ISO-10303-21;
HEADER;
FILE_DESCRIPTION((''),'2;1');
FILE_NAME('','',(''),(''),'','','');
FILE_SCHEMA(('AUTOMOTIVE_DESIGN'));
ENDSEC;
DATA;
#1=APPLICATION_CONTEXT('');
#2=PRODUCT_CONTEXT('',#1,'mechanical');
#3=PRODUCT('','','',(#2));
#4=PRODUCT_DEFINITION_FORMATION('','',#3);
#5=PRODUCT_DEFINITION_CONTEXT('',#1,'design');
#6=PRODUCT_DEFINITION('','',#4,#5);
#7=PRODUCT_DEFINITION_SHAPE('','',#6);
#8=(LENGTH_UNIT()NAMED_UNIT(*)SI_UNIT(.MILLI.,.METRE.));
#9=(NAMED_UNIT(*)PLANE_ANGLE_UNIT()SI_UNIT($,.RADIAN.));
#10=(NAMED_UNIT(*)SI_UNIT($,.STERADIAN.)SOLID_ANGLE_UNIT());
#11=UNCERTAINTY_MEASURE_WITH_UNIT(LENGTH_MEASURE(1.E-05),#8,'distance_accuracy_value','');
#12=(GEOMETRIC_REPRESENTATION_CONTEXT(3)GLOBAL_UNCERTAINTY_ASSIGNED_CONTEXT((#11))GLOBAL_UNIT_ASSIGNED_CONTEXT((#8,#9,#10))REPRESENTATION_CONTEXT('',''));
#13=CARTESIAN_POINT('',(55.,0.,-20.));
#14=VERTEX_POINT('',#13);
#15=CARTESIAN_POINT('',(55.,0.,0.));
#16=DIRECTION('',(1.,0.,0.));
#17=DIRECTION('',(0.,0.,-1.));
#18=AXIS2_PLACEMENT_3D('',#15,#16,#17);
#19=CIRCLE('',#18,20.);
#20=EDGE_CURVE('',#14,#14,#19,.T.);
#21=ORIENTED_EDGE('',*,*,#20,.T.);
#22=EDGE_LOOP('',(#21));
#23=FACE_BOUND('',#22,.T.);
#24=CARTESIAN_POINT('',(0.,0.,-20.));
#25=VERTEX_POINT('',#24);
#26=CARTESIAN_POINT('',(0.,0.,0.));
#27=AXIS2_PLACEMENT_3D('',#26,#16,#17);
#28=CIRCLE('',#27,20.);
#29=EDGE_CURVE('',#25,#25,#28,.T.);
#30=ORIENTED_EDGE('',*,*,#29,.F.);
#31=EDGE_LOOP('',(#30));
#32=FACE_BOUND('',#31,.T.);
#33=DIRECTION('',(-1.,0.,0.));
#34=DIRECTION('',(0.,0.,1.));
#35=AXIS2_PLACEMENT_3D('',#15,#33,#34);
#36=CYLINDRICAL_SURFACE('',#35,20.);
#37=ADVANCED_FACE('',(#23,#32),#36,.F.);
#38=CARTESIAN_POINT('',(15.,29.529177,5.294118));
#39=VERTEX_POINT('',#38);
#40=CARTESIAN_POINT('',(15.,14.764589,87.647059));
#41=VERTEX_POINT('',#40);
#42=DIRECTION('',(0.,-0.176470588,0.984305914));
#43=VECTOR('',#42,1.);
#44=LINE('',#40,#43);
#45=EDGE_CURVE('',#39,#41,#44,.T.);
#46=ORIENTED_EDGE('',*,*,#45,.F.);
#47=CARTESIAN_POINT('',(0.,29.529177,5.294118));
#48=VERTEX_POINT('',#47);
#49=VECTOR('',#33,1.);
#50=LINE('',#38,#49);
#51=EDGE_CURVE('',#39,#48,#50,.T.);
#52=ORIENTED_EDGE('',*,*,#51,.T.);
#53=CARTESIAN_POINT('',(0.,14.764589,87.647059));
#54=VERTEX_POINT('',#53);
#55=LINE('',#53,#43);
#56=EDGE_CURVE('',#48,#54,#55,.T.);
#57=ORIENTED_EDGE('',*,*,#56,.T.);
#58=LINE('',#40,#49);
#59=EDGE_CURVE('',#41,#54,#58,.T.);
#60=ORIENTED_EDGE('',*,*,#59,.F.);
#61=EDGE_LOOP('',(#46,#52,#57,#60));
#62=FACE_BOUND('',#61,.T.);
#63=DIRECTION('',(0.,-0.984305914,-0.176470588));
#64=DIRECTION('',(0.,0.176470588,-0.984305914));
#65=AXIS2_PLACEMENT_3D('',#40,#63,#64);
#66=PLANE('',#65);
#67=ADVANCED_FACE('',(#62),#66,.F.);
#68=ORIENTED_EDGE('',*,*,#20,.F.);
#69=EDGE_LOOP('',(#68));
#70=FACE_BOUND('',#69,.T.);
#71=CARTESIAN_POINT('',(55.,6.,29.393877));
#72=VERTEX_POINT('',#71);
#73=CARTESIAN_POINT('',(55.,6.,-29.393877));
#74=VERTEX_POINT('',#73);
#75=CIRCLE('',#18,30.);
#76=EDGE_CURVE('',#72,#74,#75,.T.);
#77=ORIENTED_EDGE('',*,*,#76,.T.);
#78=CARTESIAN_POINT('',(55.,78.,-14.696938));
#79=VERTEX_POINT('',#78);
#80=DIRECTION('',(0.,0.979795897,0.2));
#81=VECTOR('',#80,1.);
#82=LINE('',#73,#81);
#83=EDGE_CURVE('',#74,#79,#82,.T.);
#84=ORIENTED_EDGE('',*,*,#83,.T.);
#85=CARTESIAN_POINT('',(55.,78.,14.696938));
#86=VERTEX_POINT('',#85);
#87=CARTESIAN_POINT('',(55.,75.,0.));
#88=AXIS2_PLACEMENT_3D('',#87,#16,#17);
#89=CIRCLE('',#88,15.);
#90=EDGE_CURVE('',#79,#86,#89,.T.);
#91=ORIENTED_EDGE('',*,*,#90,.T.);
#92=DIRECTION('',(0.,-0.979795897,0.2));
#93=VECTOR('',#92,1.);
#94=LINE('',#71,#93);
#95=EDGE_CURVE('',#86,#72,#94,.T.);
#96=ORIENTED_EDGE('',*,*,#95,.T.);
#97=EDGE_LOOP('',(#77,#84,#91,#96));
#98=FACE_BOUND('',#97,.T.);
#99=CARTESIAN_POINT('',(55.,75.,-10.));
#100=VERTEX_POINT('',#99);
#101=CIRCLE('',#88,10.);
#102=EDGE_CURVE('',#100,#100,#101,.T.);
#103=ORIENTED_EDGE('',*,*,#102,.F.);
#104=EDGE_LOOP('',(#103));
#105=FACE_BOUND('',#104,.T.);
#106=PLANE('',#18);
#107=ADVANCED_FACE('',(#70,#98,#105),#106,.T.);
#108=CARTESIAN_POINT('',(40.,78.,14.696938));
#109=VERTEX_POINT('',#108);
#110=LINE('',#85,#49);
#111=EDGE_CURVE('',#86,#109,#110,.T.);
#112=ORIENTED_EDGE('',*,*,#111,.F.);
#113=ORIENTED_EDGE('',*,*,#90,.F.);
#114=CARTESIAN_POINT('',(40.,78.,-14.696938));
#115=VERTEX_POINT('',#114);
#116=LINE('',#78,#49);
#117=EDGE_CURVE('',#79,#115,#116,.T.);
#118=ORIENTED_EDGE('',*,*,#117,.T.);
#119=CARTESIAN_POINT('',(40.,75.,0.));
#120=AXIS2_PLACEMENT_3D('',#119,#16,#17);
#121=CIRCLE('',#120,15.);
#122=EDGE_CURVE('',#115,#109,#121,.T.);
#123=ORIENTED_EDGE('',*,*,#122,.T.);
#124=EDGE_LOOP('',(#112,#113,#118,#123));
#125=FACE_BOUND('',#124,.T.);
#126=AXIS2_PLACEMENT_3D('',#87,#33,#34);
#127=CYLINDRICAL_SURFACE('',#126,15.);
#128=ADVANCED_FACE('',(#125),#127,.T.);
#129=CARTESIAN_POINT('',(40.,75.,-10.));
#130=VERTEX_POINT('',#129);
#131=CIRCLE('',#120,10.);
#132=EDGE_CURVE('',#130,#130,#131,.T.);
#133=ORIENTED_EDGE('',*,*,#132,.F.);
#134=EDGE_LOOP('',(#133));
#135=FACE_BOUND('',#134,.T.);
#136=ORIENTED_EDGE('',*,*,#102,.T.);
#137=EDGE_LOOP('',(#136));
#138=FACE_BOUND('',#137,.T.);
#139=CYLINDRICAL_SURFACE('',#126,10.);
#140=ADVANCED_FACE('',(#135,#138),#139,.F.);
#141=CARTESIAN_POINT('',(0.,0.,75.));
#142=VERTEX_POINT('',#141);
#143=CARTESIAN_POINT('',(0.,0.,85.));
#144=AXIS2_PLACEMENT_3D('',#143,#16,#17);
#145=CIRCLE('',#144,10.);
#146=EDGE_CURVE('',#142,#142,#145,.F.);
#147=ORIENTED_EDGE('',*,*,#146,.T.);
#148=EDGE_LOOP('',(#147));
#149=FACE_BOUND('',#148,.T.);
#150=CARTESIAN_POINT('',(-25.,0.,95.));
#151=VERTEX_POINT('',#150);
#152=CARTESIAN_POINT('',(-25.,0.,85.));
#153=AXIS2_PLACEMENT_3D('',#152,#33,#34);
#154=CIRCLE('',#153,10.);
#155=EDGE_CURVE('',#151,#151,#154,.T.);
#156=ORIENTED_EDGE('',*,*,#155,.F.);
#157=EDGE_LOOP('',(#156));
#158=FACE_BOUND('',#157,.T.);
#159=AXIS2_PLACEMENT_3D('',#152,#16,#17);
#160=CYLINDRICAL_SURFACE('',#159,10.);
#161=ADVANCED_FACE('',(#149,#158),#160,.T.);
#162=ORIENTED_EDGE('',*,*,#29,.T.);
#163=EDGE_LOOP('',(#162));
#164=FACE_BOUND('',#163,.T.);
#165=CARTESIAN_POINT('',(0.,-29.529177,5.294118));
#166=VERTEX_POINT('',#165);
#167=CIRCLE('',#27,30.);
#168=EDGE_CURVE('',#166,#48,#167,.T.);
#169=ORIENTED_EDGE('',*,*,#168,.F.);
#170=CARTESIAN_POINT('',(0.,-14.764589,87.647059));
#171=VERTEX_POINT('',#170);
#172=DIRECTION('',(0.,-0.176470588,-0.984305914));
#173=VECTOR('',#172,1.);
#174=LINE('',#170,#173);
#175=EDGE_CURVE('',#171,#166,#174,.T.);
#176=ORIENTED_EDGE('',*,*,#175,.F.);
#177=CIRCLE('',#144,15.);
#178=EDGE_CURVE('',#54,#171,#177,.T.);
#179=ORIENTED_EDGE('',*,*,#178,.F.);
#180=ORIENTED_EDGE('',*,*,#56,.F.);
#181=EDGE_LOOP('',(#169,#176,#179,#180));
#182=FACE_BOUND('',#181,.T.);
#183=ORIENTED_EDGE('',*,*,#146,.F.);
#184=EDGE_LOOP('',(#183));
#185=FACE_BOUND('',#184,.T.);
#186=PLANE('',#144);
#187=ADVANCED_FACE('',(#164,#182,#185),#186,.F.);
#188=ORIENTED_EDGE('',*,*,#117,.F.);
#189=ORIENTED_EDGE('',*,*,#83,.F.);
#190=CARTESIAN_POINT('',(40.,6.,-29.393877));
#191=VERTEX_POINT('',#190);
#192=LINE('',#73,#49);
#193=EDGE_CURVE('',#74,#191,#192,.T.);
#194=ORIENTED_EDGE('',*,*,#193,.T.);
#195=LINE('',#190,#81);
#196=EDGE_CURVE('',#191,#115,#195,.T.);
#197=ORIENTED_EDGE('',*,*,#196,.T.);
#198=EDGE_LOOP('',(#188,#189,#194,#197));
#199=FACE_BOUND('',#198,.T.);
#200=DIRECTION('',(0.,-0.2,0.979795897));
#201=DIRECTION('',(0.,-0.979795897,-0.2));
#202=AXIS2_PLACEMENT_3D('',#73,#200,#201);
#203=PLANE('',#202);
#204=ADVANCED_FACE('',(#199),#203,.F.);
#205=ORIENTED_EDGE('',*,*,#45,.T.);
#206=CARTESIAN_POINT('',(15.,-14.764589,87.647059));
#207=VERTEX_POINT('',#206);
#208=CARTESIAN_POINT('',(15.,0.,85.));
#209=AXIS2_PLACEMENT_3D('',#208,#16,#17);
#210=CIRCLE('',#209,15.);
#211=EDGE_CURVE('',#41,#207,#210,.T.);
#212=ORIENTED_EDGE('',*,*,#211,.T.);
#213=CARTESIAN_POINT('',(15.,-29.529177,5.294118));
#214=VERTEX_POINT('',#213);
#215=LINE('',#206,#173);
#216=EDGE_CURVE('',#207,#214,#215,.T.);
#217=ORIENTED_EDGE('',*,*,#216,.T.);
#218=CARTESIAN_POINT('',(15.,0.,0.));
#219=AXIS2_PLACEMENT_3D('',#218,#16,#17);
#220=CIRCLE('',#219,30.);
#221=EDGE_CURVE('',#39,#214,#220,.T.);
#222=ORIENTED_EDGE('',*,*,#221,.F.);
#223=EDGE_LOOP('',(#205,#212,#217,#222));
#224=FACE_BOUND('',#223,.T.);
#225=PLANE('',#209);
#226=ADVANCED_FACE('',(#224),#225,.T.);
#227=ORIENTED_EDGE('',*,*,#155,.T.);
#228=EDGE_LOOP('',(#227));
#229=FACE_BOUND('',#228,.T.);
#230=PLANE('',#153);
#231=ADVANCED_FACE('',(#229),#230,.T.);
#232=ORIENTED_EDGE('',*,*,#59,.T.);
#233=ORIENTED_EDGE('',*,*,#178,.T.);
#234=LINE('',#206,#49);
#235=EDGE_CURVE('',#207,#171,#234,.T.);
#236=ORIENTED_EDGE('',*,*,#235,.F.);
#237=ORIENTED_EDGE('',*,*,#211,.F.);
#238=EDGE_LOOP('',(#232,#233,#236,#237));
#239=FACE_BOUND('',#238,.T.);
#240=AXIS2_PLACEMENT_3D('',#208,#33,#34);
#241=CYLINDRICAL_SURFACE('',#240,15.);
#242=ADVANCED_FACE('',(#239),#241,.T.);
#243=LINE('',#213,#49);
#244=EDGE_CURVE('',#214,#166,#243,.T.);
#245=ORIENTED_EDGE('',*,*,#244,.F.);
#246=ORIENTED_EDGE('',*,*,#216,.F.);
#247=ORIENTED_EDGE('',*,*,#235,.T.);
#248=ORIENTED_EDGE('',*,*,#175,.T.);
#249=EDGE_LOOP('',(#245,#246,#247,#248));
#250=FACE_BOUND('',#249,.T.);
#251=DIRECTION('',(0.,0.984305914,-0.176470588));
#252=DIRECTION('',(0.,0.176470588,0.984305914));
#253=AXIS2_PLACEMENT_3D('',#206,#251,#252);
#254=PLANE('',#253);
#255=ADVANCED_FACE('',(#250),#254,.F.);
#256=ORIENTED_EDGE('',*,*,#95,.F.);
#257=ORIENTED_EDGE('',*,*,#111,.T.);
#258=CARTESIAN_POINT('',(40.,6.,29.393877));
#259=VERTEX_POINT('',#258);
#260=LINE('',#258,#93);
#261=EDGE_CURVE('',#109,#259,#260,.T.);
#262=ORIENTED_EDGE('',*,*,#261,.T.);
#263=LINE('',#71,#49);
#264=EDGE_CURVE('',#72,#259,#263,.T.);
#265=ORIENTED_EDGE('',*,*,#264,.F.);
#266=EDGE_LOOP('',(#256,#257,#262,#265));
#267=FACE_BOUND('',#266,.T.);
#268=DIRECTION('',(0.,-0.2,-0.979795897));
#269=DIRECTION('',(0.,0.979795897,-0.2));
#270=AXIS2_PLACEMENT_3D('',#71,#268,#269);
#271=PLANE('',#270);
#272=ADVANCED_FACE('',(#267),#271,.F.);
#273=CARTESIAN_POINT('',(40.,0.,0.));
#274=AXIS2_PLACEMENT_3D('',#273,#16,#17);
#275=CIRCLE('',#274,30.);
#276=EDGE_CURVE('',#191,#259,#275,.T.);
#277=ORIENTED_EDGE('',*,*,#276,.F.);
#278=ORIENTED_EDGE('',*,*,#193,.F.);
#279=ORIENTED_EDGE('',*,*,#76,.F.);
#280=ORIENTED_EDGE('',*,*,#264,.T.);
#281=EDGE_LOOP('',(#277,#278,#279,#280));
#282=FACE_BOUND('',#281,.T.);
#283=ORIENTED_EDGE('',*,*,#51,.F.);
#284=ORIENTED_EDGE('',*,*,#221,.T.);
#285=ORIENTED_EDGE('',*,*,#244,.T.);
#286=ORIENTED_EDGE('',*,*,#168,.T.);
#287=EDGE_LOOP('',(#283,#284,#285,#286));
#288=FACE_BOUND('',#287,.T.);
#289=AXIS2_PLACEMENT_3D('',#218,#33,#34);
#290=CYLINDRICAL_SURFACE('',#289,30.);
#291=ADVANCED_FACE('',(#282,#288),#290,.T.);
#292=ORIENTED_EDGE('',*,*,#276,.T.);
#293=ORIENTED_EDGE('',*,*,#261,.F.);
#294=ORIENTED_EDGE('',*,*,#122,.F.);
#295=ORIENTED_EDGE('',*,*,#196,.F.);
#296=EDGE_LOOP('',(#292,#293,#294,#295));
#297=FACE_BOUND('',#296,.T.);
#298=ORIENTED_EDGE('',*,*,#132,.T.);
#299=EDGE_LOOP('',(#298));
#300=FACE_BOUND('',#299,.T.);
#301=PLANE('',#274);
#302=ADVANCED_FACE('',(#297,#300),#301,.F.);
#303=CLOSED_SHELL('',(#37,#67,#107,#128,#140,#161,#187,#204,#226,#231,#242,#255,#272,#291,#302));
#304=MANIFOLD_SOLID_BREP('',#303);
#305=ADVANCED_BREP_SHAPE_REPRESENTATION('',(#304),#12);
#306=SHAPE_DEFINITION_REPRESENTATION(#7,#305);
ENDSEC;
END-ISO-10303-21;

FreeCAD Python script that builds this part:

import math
import FreeCAD as App
import Part
import Sketcher
Q = App.Units.Quantity

doc = App.newDocument("Part")
body = doc.addObject("PartDesign::Body", "Body")

# Sketch on YZ plane
sketch1 = body.newObject("Sketcher::SketchObject", "Sketch")
sketch1.AttachmentSupport = (doc.getObject("YZ_Plane"), [""])
sketch1.MapMode = "FlatFace"
sketch1.addGeometry([
    Part.LineSegment(App.Vector(-15, 88, 0), App.Vector(-30, 5, 0)),
    Part.ArcOfCircle(Part.Circle(App.Vector(0, 0, 0), App.Vector(0, 0, 1), 30), math.radians(170), math.radians(370)),
    Part.LineSegment(App.Vector(30, 5, 0), App.Vector(15, 88, 0)),
    Part.ArcOfCircle(Part.Circle(App.Vector(0, 85, 0), App.Vector(0, 0, 1), 15), math.radians(10), math.radians(170)),
], False)
sketch1.addConstraint([
    Sketcher.Constraint("Tangent", 0, 2, 1, 1),
    Sketcher.Constraint("Tangent", 1, 2, 2, 1),
    Sketcher.Constraint("Tangent", 2, 2, 3, 1),
    Sketcher.Constraint("Tangent", 3, 2, 0, 1),
    Sketcher.Constraint("Coincident", 1, 3, -1, 1),
    Sketcher.Constraint("PointOnObject", 3, 3, -2),
    Sketcher.Constraint("Radius", 1, Q("30 mm")),
    Sketcher.Constraint("Radius", 3, Q("15 mm")),
    Sketcher.Constraint("DistanceY", -1, 1, 3, 3, Q("85 mm")),
])
pad1 = body.newObject("PartDesign::Pad", "Pad")
pad1.Profile = sketch1
pad1.Length = 15

# Sketch on YZ plane
sketch2 = body.newObject("Sketcher::SketchObject", "Sketch001")
sketch2.AttachmentSupport = (doc.getObject("YZ_Plane"), [""])
sketch2.MapMode = "FlatFace"
sketch2.AttachmentOffset = App.Placement(App.Vector(0, 0, 15), App.Rotation())
sketch2.addGeometry(Part.Circle(App.Vector(0, 0, 0), App.Vector(0, 0, 1), 30), False)
sketch2.addConstraint([
    Sketcher.Constraint("Coincident", 0, 3, -1, 1),
    Sketcher.Constraint("Diameter", 0, Q("60 mm")),
])
pad2 = body.newObject("PartDesign::Pad", "Pad001")
pad2.Profile = sketch2
pad2.Length = 25

# Sketch on YZ plane
sketch3 = body.newObject("Sketcher::SketchObject", "Sketch002")
sketch3.AttachmentSupport = (doc.getObject("YZ_Plane"), [""])
sketch3.MapMode = "FlatFace"
sketch3.AttachmentOffset = App.Placement(App.Vector(0, 0, 40), App.Rotation())
sketch3.addGeometry([
    Part.LineSegment(App.Vector(78, 15, 0), App.Vector(6, 29, 0)),  # 0
    Part.ArcOfCircle(Part.Circle(App.Vector(0, 0, 0), App.Vector(0, 0, 1), 30), math.radians(78), math.radians(282)),  # 1
    Part.LineSegment(App.Vector(6, -29, 0), App.Vector(78, -15, 0)),  # 2
    Part.ArcOfCircle(Part.Circle(App.Vector(75, 0, 0), App.Vector(0, 0, 1), 15), math.radians(-78), math.radians(78)),  # 3
    Part.Circle(App.Vector(75, 0, 0), App.Vector(0, 0, 1), 10),  # 4
    Part.Circle(App.Vector(0, 0, 0), App.Vector(0, 0, 1), 20),  # 5
], False)
sketch3.addConstraint([
    Sketcher.Constraint("Tangent", 0, 2, 1, 1),
    Sketcher.Constraint("Tangent", 1, 2, 2, 1),
    Sketcher.Constraint("Tangent", 2, 2, 3, 1),
    Sketcher.Constraint("Tangent", 3, 2, 0, 1),
    Sketcher.Constraint("Coincident", 1, 3, -1, 1),
    Sketcher.Constraint("Coincident", 5, 3, -1, 1),
    Sketcher.Constraint("Coincident", 4, 3, 3, 3),
    Sketcher.Constraint("PointOnObject", 3, 3, -1),
    Sketcher.Constraint("Diameter", 4, Q("20 mm")),
    Sketcher.Constraint("Diameter", 5, Q("40 mm")),
    Sketcher.Constraint("Radius", 1, Q("30 mm")),
    Sketcher.Constraint("Radius", 3, Q("15 mm")),
    Sketcher.Constraint("DistanceX", -1, 1, 3, 3, Q("75 mm")),
])
pad3 = body.newObject("PartDesign::Pad", "Pad002")
pad3.Profile = sketch3
pad3.Length = 15

# Sketch on YZ plane
sketch4 = body.newObject("Sketcher::SketchObject", "Sketch003")
sketch4.AttachmentSupport = (doc.getObject("YZ_Plane"), [""])
sketch4.MapMode = "FlatFace"
sketch4.AttachmentOffset = App.Placement(App.Vector(0, 0, 55), App.Rotation())
sketch4.addGeometry(Part.Circle(App.Vector(0, 0, 0), App.Vector(0, 0, 1), 20), False)
sketch4.addConstraint([
    Sketcher.Constraint("Coincident", 0, 3, -1, 1),
    Sketcher.Constraint("Diameter", 0, Q("40 mm")),
])
pocket1 = body.newObject("PartDesign::Pocket", "Pocket")
pocket1.Profile = sketch4
pocket1.Type = "ThroughAll"
pocket1.Midplane = True

# Sketch on YZ plane
sketch5 = body.newObject("Sketcher::SketchObject", "Sketch004")
sketch5.AttachmentSupport = (doc.getObject("YZ_Plane"), [""])
sketch5.MapMode = "FlatFace"
sketch5.addGeometry(Part.Circle(App.Vector(0, 85, 0), App.Vector(0, 0, 1), 10), False)
sketch5.addConstraint([
    Sketcher.Constraint("PointOnObject", 0, 3, -2),
    Sketcher.Constraint("Diameter", 0, Q("20 mm")),
    Sketcher.Constraint("DistanceY", -1, 1, 0, 3, Q("85 mm")),
])
pad4 = body.newObject("PartDesign::Pad", "Pad003")
pad4.Profile = sketch5
pad4.Length = 25
pad4.Reversed = True

doc.recompute()
